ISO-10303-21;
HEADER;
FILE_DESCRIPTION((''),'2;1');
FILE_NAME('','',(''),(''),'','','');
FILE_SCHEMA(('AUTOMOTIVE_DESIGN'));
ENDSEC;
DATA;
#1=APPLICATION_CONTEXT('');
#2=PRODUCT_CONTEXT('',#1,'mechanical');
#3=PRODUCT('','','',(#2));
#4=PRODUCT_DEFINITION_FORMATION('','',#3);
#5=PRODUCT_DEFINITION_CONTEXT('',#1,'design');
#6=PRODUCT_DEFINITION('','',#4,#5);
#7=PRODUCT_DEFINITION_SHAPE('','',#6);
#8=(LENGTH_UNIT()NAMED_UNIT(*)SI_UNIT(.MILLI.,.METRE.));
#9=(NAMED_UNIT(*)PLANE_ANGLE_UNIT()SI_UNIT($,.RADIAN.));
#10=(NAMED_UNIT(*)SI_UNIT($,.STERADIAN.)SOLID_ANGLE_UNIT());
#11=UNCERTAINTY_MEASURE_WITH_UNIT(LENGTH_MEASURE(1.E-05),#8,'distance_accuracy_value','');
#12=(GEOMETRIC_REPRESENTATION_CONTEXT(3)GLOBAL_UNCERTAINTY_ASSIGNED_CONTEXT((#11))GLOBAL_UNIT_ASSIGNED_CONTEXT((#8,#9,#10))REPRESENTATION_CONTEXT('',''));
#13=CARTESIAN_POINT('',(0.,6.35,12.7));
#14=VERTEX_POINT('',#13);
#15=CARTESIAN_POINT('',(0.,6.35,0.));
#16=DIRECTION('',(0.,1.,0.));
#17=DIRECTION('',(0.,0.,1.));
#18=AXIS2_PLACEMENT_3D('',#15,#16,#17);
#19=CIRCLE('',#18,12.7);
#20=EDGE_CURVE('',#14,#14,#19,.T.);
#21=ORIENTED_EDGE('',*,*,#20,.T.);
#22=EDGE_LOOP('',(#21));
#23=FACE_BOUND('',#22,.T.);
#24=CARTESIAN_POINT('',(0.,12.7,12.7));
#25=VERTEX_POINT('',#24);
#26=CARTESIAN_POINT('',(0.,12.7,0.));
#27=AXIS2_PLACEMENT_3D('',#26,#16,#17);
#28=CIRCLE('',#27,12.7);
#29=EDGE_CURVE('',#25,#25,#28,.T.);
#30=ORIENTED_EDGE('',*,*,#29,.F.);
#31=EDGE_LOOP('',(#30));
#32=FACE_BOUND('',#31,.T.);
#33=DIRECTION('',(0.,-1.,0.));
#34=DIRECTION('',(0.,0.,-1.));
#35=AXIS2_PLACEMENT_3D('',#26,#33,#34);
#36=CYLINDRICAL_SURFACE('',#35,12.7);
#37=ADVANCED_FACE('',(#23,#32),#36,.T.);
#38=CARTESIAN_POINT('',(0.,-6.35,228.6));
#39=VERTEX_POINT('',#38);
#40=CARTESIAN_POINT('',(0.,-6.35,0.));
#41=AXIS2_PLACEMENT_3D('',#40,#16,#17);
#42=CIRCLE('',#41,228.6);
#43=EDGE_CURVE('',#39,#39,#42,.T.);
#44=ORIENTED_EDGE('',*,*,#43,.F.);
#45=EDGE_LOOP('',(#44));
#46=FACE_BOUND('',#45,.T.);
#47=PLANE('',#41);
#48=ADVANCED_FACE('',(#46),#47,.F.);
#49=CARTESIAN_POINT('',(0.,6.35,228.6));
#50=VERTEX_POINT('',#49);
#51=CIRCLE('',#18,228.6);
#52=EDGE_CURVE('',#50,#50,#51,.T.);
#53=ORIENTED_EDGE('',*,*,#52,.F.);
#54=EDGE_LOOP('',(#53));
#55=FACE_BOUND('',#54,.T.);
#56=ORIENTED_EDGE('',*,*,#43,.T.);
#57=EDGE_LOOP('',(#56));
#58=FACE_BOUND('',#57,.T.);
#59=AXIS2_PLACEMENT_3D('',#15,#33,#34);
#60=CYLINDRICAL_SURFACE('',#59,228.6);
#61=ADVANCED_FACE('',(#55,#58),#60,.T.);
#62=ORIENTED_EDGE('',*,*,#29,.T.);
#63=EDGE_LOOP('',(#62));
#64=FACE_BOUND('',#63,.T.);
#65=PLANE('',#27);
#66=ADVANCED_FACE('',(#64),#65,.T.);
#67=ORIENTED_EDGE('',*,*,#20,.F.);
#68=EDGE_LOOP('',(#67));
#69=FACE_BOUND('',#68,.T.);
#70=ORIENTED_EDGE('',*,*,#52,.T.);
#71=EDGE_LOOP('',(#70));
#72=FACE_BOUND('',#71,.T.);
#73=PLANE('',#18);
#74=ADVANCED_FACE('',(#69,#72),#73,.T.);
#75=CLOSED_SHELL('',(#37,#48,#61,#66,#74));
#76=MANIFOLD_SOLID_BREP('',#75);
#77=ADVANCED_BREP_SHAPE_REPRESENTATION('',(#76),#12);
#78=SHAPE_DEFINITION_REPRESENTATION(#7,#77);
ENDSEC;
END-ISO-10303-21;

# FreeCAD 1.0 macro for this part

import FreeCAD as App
import Part
import Sketcher
Q = App.Units.Quantity

doc = App.newDocument("Part")
params = doc.addObject("Spreadsheet::Sheet", "Params")
for row, (alias, value) in enumerate([
    ("sketch1_diameter", "18 in"),
    ("pad1_length", "0.5 in"),
    ("sketch2_diameter", "1 in"),
    ("pad2_length", "0.25 in"),
], start=1):
    params.set(f"A{row}", alias)
    params.set(f"B{row}", "=" + value)
    params.setAlias(f"B{row}", alias)

body = doc.addObject("PartDesign::Body", "Body")

# Sketch on XZ plane
sketch1 = body.newObject("Sketcher::SketchObject", "Sketch")
sketch1.AttachmentSupport = (doc.getObject("XZ_Plane"), [""])
sketch1.MapMode = "FlatFace"
sketch1.addGeometry(Part.Circle(App.Vector(0, 0, 0), App.Vector(0, 0, 1), 229), False)
sketch1.addConstraint([
    Sketcher.Constraint("Coincident", 0, 3, -1, 1),
    Sketcher.Constraint("Diameter", 0, Q("18 in")),
])
sketch1.setExpression("Constraints[1]", "Params.sketch1_diameter")
pad1 = body.newObject("PartDesign::Pad", "Pad")
pad1.Profile = sketch1
pad1.setExpression("Length", "Params.pad1_length")
pad1.Midplane = True

# Sketch on XZ plane
sketch2 = body.newObject("Sketcher::SketchObject", "Sketch001")
sketch2.AttachmentSupport = (doc.getObject("XZ_Plane"), [""])
sketch2.MapMode = "FlatFace"
sketch2.AttachmentOffset = App.Placement(App.Vector(0, 0, -0.25 * 25.4), App.Rotation())
sketch2.addGeometry(Part.Circle(App.Vector(0, 0, 0), App.Vector(0, 0, 1), 13), False)
sketch2.addConstraint([
    Sketcher.Constraint("Coincident", 0, 3, -1, 1),
    Sketcher.Constraint("Diameter", 0, Q("1 in")),
])
sketch2.setExpression("Constraints[1]", "Params.sketch2_diameter")
pad2 = body.newObject("PartDesign::Pad", "Pad001")
pad2.Profile = sketch2
pad2.setExpression("Length", "Params.pad2_length")
pad2.Reversed = True

doc.recompute()
